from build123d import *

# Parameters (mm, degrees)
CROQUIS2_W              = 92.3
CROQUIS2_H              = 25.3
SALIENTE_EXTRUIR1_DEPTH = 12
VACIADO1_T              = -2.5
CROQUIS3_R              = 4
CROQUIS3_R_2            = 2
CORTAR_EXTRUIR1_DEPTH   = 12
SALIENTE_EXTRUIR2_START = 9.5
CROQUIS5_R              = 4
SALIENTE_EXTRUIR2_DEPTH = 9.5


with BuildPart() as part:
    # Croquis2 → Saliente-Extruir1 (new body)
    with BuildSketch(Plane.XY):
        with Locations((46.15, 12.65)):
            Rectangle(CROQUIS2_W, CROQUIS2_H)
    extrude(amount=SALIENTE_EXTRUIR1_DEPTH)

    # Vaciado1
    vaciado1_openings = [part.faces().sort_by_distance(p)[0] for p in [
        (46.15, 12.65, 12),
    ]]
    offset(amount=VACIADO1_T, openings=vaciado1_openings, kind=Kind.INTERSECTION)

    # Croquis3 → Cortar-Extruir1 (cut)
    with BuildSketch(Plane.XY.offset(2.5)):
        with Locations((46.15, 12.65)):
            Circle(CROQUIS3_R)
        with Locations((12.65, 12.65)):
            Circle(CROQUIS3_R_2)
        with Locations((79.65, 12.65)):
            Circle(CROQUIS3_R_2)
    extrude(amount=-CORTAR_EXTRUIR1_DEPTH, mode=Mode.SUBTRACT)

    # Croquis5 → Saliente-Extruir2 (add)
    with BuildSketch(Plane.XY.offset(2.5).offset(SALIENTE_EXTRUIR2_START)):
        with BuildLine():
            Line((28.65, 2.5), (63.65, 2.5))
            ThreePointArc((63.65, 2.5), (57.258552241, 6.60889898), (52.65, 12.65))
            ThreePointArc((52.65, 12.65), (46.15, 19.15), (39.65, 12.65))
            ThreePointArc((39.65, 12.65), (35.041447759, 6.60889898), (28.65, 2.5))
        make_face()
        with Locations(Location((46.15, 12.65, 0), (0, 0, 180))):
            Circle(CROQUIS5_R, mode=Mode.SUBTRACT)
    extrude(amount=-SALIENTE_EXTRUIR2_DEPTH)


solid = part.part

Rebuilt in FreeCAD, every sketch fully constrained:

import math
import FreeCAD as App
import Part
import Sketcher
from FreeCAD import Vector
Q = App.Units.Quantity


def faces_at(feature, points):
    """Names of the faces that lie closest to the given points."""
    faces = feature.Shape.Faces
    near = lambda p: min(range(len(faces)), key=lambda i: faces[i].distToShape(Part.Vertex(*p))[0])
    return sorted({f"Face{near(p) + 1}" for p in points})

doc = App.newDocument("Part")
body = doc.addObject("PartDesign::Body", "Body")

sketch1 = doc.addObject("Sketcher::SketchObject", "Sketch")
body.addObject(sketch1)
sketch1.AttachmentSupport = (doc.XY_Plane, [""])
sketch1.MapMode = "FlatFace"
sketch1.addGeometry([
    Part.LineSegment(Vector(0, 25.3, 0), Vector(0, 0, 0)),
    Part.LineSegment(Vector(0, 0, 0), Vector(92.3, 0, 0)),
    Part.LineSegment(Vector(92.3, 0, 0), Vector(92.3, 25.3, 0)),
    Part.LineSegment(Vector(92.3, 25.3, 0), Vector(0, 25.3, 0)),
], False)
sketch1.addConstraint([
    Sketcher.Constraint("Coincident", 0, 2, 1, 1),
    Sketcher.Constraint("Coincident", 1, 2, 2, 1),
    Sketcher.Constraint("Coincident", 2, 2, 3, 1),
    Sketcher.Constraint("Coincident", 3, 2, 0, 1),
    Sketcher.Constraint("Vertical", 0),
    Sketcher.Constraint("Horizontal", 1),
    Sketcher.Constraint("Vertical", 2),
    Sketcher.Constraint("Horizontal", 3),
    Sketcher.Constraint("Coincident", 0, 2, -1, 1),
    Sketcher.Constraint("DistanceX", 1, 1, 1, 2, Q("92.3 mm")),
    Sketcher.Constraint("DistanceY", 0, 2, 0, 1, Q("25.3 mm")),
])
pad1 = doc.addObject("PartDesign::Pad", "Pad")
body.addObject(pad1)
pad1.Profile = sketch1
pad1.Length = 12
doc.recompute()

thickness = doc.addObject("PartDesign::Thickness", "Thickness")
body.addObject(thickness)
thickness.Base = (pad1, faces_at(pad1, [(46.15, 12.65, 12)]))
thickness.Value = 2.5
thickness.Reversed = True
thickness.Join = "Intersection"

sketch2 = doc.addObject("Sketcher::SketchObject", "Sketch001")
body.addObject(sketch2)
sketch2.AttachmentSupport = (doc.XY_Plane, [""])
sketch2.MapMode = "FlatFace"
sketch2.AttachmentOffset = App.Placement(Vector(0, 0, 2.5), App.Rotation())
sketch2.addGeometry([
    Part.Circle(Vector(46.15, 12.65, 0), Vector(0, 0, 1), 4),
    Part.Circle(Vector(12.65, 12.65, 0), Vector(0, 0, 1), 2),
    Part.Circle(Vector(79.65, 12.65, 0), Vector(0, 0, 1), 2),
], False)
sketch2.addConstraint([
    Sketcher.Constraint("Equal", 1, 2),
    Sketcher.Constraint("Horizontal", 0, 3, 1, 3),
    Sketcher.Constraint("Horizontal", 1, 3, 2, 3),
    Sketcher.Constraint("Diameter", 0, Q("8 mm")),
    Sketcher.Constraint("Diameter", 1, Q("4 mm")),
    Sketcher.Constraint("DistanceX", 1, 3, 2, 3, Q("67 mm")),
    Sketcher.Constraint("DistanceX", 1, 3, 0, 3, Q("33.5 mm")),
    Sketcher.Constraint("DistanceX", -1, 1, 0, 3, Q("46.15 mm")),
    Sketcher.Constraint("DistanceY", -1, 1, 0, 3, Q("12.65 mm")),
])
pocket1 = doc.addObject("PartDesign::Pocket", "Pocket")
body.addObject(pocket1)
pocket1.Profile = sketch2
pocket1.Length = 12

sketch3 = doc.addObject("Sketcher::SketchObject", "Sketch002")
body.addObject(sketch3)
sketch3.AttachmentSupport = (doc.XY_Plane, [""])
sketch3.MapMode = "FlatFace"
sketch3.AttachmentOffset = App.Placement(Vector(0, 0, 12), App.Rotation())
sketch3.addGeometry([
    Part.LineSegment(Vector(28.65, 2.5, 0), Vector(63.65, 2.5, 0)),
    Part.ArcOfCircle(Part.Circle(Vector(72.150229, 22.747662, 0), Vector(0, 0, 1), 21.959547), math.radians(-152.623851), math.radians(-112.773291)),
    Part.ArcOfCircle(Part.Circle(Vector(46.15, 12.65, 0), Vector(0, 0, 1), 6.5), math.radians(0), math.radians(180)),
    Part.ArcOfCircle(Part.Circle(Vector(20.149771, 22.747662, 0), Vector(0, 0, 1), 21.959547), math.radians(-67.226709), math.radians(-27.376149)),
    Part.Circle(Vector(46.15, 12.65, 0), Vector(0, 0, 1), 4),
], False)
sketch3.addConstraint([
    Sketcher.Constraint("Coincident", 0, 2, 1, 2),
    Sketcher.Constraint("Coincident", 1, 1, 2, 1),
    Sketcher.Constraint("Coincident", 2, 2, 3, 2),
    Sketcher.Constraint("Coincident", 3, 1, 0, 1),
    Sketcher.Constraint("Horizontal", 0),
    Sketcher.Constraint("Coincident", 4, 3, 2, 3),
    Sketcher.Constraint("Equal", 1, 3),
    Sketcher.Constraint("Horizontal", 1, 3, 3, 3),
    Sketcher.Constraint("Horizontal", 4, 3, 1, 1),
    Sketcher.Constraint("Horizontal", 1, 1, 2, 2),
    Sketcher.Constraint("Diameter", 4, Q("8 mm")),
    Sketcher.Constraint("Radius", 2, Q("6.5 mm")),
    Sketcher.Constraint("DistanceX", 0, 1, 0, 2, Q("35 mm")),
    Sketcher.Constraint("DistanceY", -1, 1, 0, 2, Q("2.5 mm")),
    Sketcher.Constraint("DistanceX", -1, 1, 2, 3, Q("46.15 mm")),
    Sketcher.Constraint("DistanceY", -1, 1, 2, 3, Q("12.65 mm")),
    Sketcher.Constraint("Radius", 1, Q("21.959547 mm")),
])
pad2 = doc.addObject("PartDesign::Pad", "Pad001")
body.addObject(pad2)
pad2.Profile = sketch3
pad2.Length = 9.5
pad2.Reversed = True

doc.recompute()
